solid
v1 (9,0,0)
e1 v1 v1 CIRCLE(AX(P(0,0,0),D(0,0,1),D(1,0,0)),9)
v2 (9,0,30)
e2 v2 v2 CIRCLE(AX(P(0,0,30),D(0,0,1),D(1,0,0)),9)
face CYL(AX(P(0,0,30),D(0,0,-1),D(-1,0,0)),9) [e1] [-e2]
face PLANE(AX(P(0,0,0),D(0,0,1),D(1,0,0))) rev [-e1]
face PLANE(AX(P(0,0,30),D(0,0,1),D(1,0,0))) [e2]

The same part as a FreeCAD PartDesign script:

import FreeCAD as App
import Part
import Sketcher

V = App.Vector

doc = App.newDocument("Part")
body = doc.addObject("PartDesign::Body", "Body")

# Sketch on XY plane
sketch1 = body.newObject("Sketcher::SketchObject", "Sketch")
sketch1.AttachmentSupport = (doc.getObject("XY_Plane"), [""])
sketch1.MapMode = "FlatFace"
sketch1.addGeometry(Part.Circle(V(0, 0, 0), V(0, 0, 1), 9), False)
sketch1.addConstraint(Sketcher.Constraint("Coincident", 0, 3, -1, 1))
sketch1.addConstraint(Sketcher.Constraint("Diameter", 0, 18.0))
pad1 = body.newObject("PartDesign::Pad", "Pad")
pad1.Profile = sketch1
pad1.Length = 30

doc.recompute()
